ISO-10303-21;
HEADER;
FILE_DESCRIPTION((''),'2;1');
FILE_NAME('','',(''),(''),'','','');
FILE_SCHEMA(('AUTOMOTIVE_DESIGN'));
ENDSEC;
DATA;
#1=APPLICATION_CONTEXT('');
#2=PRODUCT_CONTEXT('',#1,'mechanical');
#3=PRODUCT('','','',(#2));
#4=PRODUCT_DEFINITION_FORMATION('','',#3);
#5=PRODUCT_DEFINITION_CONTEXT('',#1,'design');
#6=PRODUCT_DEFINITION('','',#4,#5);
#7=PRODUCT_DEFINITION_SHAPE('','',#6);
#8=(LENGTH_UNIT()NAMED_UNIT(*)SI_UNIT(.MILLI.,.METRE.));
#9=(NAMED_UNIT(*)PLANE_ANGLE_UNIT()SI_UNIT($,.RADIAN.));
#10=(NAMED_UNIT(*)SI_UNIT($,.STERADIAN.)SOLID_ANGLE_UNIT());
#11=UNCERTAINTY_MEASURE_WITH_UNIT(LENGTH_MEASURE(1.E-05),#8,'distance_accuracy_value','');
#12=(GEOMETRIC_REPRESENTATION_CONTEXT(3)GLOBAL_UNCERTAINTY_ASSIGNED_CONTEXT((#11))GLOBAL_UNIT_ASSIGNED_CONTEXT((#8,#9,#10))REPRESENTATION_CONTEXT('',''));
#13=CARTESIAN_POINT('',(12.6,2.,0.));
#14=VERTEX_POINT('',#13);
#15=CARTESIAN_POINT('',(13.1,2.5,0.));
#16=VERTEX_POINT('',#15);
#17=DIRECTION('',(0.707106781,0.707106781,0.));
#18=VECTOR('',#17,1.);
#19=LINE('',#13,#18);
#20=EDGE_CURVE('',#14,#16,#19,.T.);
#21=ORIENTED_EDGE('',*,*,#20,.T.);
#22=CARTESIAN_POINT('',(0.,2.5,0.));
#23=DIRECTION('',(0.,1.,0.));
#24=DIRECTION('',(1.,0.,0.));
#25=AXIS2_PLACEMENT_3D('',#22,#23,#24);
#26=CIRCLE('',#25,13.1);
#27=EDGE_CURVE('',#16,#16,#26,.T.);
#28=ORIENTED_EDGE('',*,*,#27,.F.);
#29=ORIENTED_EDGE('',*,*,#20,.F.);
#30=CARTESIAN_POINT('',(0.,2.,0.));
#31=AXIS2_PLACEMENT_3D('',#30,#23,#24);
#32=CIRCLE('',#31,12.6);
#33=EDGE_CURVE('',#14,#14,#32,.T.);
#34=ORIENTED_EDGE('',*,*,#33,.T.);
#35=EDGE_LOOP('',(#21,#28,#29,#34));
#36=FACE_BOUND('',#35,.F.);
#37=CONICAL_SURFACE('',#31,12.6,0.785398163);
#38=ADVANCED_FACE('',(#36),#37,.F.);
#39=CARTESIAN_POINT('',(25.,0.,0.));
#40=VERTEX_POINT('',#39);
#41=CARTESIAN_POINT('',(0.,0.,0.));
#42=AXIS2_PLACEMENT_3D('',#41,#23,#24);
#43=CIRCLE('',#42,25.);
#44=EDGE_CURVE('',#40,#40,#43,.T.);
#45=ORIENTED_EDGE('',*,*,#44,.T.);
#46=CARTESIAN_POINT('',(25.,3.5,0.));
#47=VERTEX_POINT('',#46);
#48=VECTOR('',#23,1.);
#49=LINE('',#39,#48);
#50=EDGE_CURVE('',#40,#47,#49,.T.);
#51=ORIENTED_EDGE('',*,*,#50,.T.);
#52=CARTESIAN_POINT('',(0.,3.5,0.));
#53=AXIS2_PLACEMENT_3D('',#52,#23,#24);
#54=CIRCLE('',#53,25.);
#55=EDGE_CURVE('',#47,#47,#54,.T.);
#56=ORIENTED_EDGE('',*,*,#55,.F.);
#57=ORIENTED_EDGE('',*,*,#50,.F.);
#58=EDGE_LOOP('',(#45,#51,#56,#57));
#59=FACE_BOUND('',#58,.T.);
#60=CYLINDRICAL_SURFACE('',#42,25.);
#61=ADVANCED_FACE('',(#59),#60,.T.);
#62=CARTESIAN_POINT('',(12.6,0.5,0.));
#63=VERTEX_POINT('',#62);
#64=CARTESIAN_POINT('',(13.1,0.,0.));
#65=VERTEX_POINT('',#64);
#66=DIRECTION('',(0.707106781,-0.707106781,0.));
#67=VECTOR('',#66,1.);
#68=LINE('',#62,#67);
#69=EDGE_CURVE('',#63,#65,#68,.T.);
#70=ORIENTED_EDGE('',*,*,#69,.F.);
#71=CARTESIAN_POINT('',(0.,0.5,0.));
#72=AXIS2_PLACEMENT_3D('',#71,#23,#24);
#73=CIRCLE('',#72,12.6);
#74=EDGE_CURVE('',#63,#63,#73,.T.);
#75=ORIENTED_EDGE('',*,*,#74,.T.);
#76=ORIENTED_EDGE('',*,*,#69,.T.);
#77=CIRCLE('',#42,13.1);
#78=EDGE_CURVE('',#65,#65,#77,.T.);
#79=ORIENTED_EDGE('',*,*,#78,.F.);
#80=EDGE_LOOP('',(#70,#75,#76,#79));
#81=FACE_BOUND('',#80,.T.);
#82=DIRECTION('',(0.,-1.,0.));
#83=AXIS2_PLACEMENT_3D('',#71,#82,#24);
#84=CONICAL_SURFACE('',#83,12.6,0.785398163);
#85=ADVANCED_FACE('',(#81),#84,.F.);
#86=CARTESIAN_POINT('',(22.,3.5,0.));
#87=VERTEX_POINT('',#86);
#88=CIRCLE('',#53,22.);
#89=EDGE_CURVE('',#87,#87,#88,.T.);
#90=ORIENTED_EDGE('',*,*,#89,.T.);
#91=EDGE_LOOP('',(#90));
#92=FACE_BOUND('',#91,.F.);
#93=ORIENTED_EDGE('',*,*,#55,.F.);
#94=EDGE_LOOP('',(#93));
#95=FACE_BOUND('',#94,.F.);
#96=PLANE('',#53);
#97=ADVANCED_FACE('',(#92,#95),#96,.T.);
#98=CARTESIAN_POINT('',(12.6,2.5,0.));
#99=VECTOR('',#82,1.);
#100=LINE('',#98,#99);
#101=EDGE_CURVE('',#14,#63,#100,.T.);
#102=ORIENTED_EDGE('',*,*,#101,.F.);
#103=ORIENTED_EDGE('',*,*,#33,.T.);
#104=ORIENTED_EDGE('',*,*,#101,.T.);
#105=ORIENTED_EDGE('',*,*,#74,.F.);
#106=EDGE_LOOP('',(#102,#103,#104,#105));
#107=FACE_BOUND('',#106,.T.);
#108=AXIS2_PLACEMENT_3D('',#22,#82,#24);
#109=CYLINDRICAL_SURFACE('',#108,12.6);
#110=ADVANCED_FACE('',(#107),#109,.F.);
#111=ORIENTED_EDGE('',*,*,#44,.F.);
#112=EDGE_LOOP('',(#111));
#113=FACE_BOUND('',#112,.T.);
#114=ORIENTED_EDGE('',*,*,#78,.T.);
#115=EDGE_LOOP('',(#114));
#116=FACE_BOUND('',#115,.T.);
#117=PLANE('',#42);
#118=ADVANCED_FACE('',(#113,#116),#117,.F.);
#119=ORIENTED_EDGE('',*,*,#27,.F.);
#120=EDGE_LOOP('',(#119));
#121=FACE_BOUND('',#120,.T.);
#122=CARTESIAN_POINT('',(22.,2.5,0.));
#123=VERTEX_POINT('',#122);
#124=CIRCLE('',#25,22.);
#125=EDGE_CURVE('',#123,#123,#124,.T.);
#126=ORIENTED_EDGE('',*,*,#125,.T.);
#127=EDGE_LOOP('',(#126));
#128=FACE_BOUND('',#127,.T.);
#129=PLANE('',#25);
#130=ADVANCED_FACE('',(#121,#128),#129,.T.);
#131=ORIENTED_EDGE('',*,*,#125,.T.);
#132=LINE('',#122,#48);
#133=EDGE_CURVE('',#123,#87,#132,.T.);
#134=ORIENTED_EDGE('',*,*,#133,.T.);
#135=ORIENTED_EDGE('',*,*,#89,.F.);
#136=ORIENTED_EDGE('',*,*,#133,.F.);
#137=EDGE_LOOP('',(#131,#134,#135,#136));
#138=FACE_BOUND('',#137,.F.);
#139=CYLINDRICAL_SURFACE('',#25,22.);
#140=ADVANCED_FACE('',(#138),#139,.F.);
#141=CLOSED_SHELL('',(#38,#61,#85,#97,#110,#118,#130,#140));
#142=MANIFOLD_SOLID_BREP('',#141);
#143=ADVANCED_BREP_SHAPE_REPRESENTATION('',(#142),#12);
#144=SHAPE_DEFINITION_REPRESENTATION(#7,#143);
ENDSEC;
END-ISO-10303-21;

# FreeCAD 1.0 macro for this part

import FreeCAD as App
import Part
import Sketcher
from FreeCAD import Vector
Q = App.Units.Quantity


def edges_at(feature, points):
    """Names of the edges that pass closest to the given points."""
    edges = feature.Shape.Edges
    near = lambda p: min(range(len(edges)), key=lambda i: edges[i].distToShape(Part.Vertex(*p))[0])
    return sorted({f"Edge{near(p) + 1}" for p in points})

doc = App.newDocument("Part")
params = doc.addObject("Spreadsheet::Sheet", "Params")
for row, (alias, value) in enumerate([
    ("sketch1_width", "3 mm"),
    ("sketch1_height", "1 mm"),
    ("sketch1_height2", "2.5 mm"),
    ("revolution_angle", "360 deg"),
    ("chamfer_size", "0.5 mm"),
], start=1):
    params.set(f"A{row}", alias)
    params.set(f"B{row}", "=" + value)
    params.setAlias(f"B{row}", alias)

body = doc.addObject("PartDesign::Body", "Body")

sketch1 = body.newObject("Sketcher::SketchObject", "Sketch")
sketch1.AttachmentSupport = (doc.getObject("XY_Plane"), [""])
sketch1.MapMode = "FlatFace"
sketch1.addGeometry([
    Part.LineSegment(Vector(12.6, 2.5, 0), Vector(12.6, 0, 0)),
    Part.LineSegment(Vector(12.6, 0, 0), Vector(25, 0, 0)),
    Part.LineSegment(Vector(25, 0, 0), Vector(25, 3.5, 0)),
    Part.LineSegment(Vector(25, 3.5, 0), Vector(22, 3.5, 0)),
    Part.LineSegment(Vector(22, 3.5, 0), Vector(22, 2.5, 0)),
    Part.LineSegment(Vector(22, 2.5, 0), Vector(12.6, 2.5, 0)),
], False)
sketch1.addConstraint([
    Sketcher.Constraint("Coincident", 0, 2, 1, 1),
    Sketcher.Constraint("Coincident", 1, 2, 2, 1),
    Sketcher.Constraint("Coincident", 2, 2, 3, 1),
    Sketcher.Constraint("Coincident", 3, 2, 4, 1),
    Sketcher.Constraint("Coincident", 4, 2, 5, 1),
    Sketcher.Constraint("Coincident", 5, 2, 0, 1),
    Sketcher.Constraint("Vertical", 0),
    Sketcher.Constraint("Horizontal", 1),
    Sketcher.Constraint("Vertical", 2),
    Sketcher.Constraint("Horizontal", 3),
    Sketcher.Constraint("Vertical", 4),
    Sketcher.Constraint("Horizontal", 5),
    Sketcher.Constraint("PointOnObject", 0, 2, -1),
    Sketcher.Constraint("DistanceX", 3, 2, 3, 1, Q("3 mm")),
    Sketcher.Constraint("DistanceY", 4, 2, 4, 1, Q("1 mm")),
    Sketcher.Constraint("DistanceY", 0, 2, 0, 1, Q("2.5 mm")),
    Sketcher.Constraint("DistanceX", -1, 1, 1, 2, Q("25 mm")),
    Sketcher.Constraint("DistanceX", -1, 1, 0, 2, Q("12.6 mm")),
])
sketch1.setExpression("Constraints[13]", "Params.sketch1_width")
sketch1.setExpression("Constraints[14]", "Params.sketch1_height")
sketch1.setExpression("Constraints[15]", "Params.sketch1_height2")
revolution = body.newObject("PartDesign::Revolution", "Revolution")
revolution.Profile = sketch1
revolution.ReferenceAxis = (sketch1, ["V_Axis"])
revolution.setExpression("Angle", "Params.revolution_angle")
doc.recompute()

chamfer = body.newObject("PartDesign::Chamfer", "Chamfer")
chamfer.Base = (revolution, edges_at(revolution, [(-12.6, 2.5, 0), (-12.6, 0, 0)]))
chamfer.setExpression("Size", "Params.chamfer_size")

doc.recompute()
